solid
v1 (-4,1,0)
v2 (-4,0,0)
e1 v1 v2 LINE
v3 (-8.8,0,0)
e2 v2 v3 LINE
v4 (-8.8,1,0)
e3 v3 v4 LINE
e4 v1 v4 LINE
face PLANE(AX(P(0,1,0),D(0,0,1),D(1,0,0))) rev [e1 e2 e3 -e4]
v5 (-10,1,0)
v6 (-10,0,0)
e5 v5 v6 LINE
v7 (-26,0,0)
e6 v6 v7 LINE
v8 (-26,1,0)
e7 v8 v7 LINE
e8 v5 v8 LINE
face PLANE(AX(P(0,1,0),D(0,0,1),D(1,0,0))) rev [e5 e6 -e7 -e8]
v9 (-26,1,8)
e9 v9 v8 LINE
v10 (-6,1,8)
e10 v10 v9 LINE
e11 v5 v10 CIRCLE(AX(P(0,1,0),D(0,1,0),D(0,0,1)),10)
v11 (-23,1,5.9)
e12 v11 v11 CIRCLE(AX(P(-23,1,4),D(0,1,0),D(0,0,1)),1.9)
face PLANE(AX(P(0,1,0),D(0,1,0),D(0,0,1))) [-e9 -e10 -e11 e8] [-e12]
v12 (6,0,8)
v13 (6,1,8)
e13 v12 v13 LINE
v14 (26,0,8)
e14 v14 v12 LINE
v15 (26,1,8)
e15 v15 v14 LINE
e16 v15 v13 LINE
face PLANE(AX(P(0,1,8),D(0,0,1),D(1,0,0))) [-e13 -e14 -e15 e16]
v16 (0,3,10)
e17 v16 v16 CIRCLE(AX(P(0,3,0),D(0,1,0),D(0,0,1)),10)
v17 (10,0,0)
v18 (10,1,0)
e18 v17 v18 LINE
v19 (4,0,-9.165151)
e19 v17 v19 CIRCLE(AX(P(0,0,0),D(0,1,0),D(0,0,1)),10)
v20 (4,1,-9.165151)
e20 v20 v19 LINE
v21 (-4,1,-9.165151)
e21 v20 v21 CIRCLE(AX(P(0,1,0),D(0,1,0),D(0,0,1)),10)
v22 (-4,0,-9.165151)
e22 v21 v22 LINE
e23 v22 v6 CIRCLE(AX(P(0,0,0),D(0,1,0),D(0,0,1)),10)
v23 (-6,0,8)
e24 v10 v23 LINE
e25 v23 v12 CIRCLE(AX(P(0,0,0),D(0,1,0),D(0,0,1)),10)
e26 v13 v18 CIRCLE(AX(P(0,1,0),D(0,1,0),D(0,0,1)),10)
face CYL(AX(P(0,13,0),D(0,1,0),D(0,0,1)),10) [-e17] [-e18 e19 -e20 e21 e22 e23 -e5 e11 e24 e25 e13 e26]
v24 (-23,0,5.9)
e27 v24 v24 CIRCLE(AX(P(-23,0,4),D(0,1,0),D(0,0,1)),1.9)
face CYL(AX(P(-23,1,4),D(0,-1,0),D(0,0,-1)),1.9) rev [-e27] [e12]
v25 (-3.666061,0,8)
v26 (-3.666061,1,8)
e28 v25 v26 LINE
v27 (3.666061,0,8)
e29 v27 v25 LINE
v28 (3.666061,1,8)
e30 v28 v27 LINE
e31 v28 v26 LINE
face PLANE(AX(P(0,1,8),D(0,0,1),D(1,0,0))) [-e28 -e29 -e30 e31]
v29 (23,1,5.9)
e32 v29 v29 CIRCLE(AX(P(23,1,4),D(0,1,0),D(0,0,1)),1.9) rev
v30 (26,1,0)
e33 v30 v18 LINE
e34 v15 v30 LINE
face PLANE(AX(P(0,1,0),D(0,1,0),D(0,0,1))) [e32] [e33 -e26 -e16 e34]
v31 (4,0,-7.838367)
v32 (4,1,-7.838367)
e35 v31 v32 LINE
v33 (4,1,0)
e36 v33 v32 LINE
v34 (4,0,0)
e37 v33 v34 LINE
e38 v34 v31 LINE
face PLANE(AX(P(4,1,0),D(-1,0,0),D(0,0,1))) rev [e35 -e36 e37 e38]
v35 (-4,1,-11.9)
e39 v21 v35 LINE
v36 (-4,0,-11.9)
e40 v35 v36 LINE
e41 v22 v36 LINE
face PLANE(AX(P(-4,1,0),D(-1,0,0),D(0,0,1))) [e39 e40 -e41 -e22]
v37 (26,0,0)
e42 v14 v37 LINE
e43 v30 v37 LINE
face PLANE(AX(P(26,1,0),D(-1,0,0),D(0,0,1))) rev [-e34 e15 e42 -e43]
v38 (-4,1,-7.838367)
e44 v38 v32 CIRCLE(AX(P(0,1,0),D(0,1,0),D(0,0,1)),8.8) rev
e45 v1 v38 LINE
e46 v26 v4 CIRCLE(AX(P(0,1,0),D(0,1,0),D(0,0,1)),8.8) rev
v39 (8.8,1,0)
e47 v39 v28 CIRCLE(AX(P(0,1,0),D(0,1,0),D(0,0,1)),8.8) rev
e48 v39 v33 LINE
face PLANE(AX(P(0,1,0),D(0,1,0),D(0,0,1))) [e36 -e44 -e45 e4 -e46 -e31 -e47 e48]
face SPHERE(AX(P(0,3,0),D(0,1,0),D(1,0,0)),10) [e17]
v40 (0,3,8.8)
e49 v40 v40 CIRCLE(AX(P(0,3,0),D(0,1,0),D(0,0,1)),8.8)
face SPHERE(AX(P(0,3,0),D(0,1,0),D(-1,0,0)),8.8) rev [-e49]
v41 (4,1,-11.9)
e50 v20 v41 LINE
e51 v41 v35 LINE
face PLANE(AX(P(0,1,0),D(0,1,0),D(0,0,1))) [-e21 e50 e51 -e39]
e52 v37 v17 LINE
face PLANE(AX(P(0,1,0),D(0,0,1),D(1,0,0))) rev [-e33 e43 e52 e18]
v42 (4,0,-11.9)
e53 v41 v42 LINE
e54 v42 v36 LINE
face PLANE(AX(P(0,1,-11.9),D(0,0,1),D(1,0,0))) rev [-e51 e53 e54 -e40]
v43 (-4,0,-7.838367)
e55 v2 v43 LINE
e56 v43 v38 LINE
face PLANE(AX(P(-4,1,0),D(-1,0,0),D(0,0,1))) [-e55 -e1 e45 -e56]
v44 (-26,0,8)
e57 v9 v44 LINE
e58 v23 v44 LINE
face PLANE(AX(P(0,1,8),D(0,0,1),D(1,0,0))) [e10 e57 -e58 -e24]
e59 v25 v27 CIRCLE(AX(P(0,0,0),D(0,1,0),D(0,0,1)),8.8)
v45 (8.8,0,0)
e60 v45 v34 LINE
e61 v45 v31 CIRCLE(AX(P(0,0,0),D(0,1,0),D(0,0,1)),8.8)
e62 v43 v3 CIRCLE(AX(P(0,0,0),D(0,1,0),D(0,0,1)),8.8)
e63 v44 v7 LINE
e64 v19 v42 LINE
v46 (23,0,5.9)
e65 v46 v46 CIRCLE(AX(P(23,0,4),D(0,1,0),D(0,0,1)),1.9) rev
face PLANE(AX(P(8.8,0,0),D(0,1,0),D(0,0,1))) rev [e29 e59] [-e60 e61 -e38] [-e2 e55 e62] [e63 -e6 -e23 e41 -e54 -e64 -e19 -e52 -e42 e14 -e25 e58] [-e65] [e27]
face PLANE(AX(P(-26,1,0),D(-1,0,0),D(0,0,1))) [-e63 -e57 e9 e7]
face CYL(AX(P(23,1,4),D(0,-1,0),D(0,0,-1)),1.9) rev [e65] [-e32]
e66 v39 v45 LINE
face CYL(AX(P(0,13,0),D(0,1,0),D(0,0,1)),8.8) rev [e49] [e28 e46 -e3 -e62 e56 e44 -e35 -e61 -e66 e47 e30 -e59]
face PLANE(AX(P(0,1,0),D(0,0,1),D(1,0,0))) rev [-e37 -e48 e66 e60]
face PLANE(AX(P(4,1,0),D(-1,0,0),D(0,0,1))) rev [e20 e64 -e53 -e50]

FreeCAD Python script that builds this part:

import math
import FreeCAD as App
import Part
import Sketcher
Q = App.Units.Quantity


def add_polygon(sketch, points):
    """Adds a closed chain of lines whose ends are joined by coincident constraints."""
    first, n = sketch.GeometryCount, len(points)
    for a, b in zip(points, points[1:] + points[:1]):
        sketch.addGeometry(Part.LineSegment(App.Vector(*a, 0), App.Vector(*b, 0)), False)
    for i in range(n):
        sketch.addConstraint(Sketcher.Constraint("Coincident", first + i, 2, first + (i + 1) % n, 1))

doc = App.newDocument("Part")
body = doc.addObject("PartDesign::Body", "Body")

# Sketch on XY plane
sketch1 = doc.addObject("Sketcher::SketchObject", "Sketch")
body.addObject(sketch1)
sketch1.AttachmentSupport = (doc.XY_Plane, [""])
sketch1.MapMode = "FlatFace"
sketch1.addGeometry([
    Part.LineSegment(App.Vector(8.8, 0, 0), App.Vector(10, 0, 0)),  # 0
    Part.LineSegment(App.Vector(10, 0, 0), App.Vector(10, 3, 0)),  # 1
    Part.ArcOfCircle(Part.Circle(App.Vector(0, 3, 0), App.Vector(0, 0, 1), 10), math.radians(0), math.radians(90)),  # 2
    Part.LineSegment(App.Vector(0, 13, 0), App.Vector(0, 11.8, 0)),  # 3
    Part.ArcOfCircle(Part.Circle(App.Vector(0, 3, 0), App.Vector(0, 0, 1), 8.8), math.radians(0), math.radians(90)),  # 4
    Part.LineSegment(App.Vector(8.8, 3, 0), App.Vector(8.8, 0, 0)),  # 5
], False)
sketch1.addConstraint([
    Sketcher.Constraint("Coincident", 0, 2, 1, 1),
    Sketcher.Constraint("Tangent", 1, 2, 2, 1),
    Sketcher.Constraint("Coincident", 2, 2, 3, 1),
    Sketcher.Constraint("Coincident", 3, 2, 4, 2),
    Sketcher.Constraint("Tangent", 4, 1, 5, 1),
    Sketcher.Constraint("Coincident", 5, 2, 0, 1),
    Sketcher.Constraint("Horizontal", 0),
    Sketcher.Constraint("Vertical", 1),
    Sketcher.Constraint("Vertical", 3),
    Sketcher.Constraint("Vertical", 5),
    Sketcher.Constraint("Coincident", 4, 3, 2, 3),
    Sketcher.Constraint("PointOnObject", 2, 3, -2),
    Sketcher.Constraint("PointOnObject", 0, 2, -1),
    Sketcher.Constraint("PointOnObject", 2, 2, -2),
    Sketcher.Constraint("Radius", 2, Q("10 mm")),
    Sketcher.Constraint("Radius", 4, Q("8.8 mm")),
    Sketcher.Constraint("DistanceY", 1, 1, 1, 2, Q("3 mm")),
])
revolution = doc.addObject("PartDesign::Revolution", "Revolution")
body.addObject(revolution)
revolution.Profile = sketch1
revolution.ReferenceAxis = (sketch1, ["V_Axis"])
revolution.Angle = 360

# Sketch on XZ plane
sketch2 = doc.addObject("Sketcher::SketchObject", "Sketch001")
body.addObject(sketch2)
sketch2.AttachmentSupport = (doc.XZ_Plane, [""])
sketch2.MapMode = "FlatFace"
add_polygon(sketch2, [(-26, 8), (26, 8), (26, 0), (4, 0), (4, -11.9), (-4, -11.9), (-4, 0), (-26, 0)])  # lines 0-7
sketch2.addGeometry(Part.Circle(App.Vector(-23, 4, 0), App.Vector(0, 0, 1), 1.9), False)  # 8
sketch2.addGeometry(Part.Circle(App.Vector(23, 4, 0), App.Vector(0, 0, 1), 1.9), False)  # 9
sketch2.addConstraint([
    Sketcher.Constraint("Horizontal", 0),
    Sketcher.Constraint("Vertical", 1),
    Sketcher.Constraint("Horizontal", 2),
    Sketcher.Constraint("Vertical", 3),
    Sketcher.Constraint("Horizontal", 4),
    Sketcher.Constraint("Vertical", 5),
    Sketcher.Constraint("Horizontal", 6),
    Sketcher.Constraint("Vertical", 7),
    Sketcher.Constraint("Equal", 8, 9),
    Sketcher.Constraint("Symmetric", 2, 2, 5, 2, -1, 1),
    Sketcher.Constraint("Symmetric", 8, 3, 9, 3, -2),
    Sketcher.Constraint("Symmetric", 1, 2, 6, 2, -2),
    Sketcher.Constraint("Equal", 4, 1),
    Sketcher.Constraint("Diameter", 8, Q("3.8 mm")),
    Sketcher.Constraint("DistanceX", 0, 1, 0, 2, Q("52 mm")),
    Sketcher.Constraint("DistanceX", 2, 2, 2, 1, Q("22 mm")),
    Sketcher.Constraint("DistanceY", 3, 2, 3, 1, Q("11.9 mm")),
    Sketcher.Constraint("DistanceX", 8, 3, -1, 1, Q("23 mm")),
    Sketcher.Constraint("DistanceY", -1, 1, 8, 3, Q("4 mm")),
])
pad1 = doc.addObject("PartDesign::Pad", "Pad")
body.addObject(pad1)
pad1.Profile = sketch2
pad1.Length = 1
pad1.Reversed = True

doc.recompute()
